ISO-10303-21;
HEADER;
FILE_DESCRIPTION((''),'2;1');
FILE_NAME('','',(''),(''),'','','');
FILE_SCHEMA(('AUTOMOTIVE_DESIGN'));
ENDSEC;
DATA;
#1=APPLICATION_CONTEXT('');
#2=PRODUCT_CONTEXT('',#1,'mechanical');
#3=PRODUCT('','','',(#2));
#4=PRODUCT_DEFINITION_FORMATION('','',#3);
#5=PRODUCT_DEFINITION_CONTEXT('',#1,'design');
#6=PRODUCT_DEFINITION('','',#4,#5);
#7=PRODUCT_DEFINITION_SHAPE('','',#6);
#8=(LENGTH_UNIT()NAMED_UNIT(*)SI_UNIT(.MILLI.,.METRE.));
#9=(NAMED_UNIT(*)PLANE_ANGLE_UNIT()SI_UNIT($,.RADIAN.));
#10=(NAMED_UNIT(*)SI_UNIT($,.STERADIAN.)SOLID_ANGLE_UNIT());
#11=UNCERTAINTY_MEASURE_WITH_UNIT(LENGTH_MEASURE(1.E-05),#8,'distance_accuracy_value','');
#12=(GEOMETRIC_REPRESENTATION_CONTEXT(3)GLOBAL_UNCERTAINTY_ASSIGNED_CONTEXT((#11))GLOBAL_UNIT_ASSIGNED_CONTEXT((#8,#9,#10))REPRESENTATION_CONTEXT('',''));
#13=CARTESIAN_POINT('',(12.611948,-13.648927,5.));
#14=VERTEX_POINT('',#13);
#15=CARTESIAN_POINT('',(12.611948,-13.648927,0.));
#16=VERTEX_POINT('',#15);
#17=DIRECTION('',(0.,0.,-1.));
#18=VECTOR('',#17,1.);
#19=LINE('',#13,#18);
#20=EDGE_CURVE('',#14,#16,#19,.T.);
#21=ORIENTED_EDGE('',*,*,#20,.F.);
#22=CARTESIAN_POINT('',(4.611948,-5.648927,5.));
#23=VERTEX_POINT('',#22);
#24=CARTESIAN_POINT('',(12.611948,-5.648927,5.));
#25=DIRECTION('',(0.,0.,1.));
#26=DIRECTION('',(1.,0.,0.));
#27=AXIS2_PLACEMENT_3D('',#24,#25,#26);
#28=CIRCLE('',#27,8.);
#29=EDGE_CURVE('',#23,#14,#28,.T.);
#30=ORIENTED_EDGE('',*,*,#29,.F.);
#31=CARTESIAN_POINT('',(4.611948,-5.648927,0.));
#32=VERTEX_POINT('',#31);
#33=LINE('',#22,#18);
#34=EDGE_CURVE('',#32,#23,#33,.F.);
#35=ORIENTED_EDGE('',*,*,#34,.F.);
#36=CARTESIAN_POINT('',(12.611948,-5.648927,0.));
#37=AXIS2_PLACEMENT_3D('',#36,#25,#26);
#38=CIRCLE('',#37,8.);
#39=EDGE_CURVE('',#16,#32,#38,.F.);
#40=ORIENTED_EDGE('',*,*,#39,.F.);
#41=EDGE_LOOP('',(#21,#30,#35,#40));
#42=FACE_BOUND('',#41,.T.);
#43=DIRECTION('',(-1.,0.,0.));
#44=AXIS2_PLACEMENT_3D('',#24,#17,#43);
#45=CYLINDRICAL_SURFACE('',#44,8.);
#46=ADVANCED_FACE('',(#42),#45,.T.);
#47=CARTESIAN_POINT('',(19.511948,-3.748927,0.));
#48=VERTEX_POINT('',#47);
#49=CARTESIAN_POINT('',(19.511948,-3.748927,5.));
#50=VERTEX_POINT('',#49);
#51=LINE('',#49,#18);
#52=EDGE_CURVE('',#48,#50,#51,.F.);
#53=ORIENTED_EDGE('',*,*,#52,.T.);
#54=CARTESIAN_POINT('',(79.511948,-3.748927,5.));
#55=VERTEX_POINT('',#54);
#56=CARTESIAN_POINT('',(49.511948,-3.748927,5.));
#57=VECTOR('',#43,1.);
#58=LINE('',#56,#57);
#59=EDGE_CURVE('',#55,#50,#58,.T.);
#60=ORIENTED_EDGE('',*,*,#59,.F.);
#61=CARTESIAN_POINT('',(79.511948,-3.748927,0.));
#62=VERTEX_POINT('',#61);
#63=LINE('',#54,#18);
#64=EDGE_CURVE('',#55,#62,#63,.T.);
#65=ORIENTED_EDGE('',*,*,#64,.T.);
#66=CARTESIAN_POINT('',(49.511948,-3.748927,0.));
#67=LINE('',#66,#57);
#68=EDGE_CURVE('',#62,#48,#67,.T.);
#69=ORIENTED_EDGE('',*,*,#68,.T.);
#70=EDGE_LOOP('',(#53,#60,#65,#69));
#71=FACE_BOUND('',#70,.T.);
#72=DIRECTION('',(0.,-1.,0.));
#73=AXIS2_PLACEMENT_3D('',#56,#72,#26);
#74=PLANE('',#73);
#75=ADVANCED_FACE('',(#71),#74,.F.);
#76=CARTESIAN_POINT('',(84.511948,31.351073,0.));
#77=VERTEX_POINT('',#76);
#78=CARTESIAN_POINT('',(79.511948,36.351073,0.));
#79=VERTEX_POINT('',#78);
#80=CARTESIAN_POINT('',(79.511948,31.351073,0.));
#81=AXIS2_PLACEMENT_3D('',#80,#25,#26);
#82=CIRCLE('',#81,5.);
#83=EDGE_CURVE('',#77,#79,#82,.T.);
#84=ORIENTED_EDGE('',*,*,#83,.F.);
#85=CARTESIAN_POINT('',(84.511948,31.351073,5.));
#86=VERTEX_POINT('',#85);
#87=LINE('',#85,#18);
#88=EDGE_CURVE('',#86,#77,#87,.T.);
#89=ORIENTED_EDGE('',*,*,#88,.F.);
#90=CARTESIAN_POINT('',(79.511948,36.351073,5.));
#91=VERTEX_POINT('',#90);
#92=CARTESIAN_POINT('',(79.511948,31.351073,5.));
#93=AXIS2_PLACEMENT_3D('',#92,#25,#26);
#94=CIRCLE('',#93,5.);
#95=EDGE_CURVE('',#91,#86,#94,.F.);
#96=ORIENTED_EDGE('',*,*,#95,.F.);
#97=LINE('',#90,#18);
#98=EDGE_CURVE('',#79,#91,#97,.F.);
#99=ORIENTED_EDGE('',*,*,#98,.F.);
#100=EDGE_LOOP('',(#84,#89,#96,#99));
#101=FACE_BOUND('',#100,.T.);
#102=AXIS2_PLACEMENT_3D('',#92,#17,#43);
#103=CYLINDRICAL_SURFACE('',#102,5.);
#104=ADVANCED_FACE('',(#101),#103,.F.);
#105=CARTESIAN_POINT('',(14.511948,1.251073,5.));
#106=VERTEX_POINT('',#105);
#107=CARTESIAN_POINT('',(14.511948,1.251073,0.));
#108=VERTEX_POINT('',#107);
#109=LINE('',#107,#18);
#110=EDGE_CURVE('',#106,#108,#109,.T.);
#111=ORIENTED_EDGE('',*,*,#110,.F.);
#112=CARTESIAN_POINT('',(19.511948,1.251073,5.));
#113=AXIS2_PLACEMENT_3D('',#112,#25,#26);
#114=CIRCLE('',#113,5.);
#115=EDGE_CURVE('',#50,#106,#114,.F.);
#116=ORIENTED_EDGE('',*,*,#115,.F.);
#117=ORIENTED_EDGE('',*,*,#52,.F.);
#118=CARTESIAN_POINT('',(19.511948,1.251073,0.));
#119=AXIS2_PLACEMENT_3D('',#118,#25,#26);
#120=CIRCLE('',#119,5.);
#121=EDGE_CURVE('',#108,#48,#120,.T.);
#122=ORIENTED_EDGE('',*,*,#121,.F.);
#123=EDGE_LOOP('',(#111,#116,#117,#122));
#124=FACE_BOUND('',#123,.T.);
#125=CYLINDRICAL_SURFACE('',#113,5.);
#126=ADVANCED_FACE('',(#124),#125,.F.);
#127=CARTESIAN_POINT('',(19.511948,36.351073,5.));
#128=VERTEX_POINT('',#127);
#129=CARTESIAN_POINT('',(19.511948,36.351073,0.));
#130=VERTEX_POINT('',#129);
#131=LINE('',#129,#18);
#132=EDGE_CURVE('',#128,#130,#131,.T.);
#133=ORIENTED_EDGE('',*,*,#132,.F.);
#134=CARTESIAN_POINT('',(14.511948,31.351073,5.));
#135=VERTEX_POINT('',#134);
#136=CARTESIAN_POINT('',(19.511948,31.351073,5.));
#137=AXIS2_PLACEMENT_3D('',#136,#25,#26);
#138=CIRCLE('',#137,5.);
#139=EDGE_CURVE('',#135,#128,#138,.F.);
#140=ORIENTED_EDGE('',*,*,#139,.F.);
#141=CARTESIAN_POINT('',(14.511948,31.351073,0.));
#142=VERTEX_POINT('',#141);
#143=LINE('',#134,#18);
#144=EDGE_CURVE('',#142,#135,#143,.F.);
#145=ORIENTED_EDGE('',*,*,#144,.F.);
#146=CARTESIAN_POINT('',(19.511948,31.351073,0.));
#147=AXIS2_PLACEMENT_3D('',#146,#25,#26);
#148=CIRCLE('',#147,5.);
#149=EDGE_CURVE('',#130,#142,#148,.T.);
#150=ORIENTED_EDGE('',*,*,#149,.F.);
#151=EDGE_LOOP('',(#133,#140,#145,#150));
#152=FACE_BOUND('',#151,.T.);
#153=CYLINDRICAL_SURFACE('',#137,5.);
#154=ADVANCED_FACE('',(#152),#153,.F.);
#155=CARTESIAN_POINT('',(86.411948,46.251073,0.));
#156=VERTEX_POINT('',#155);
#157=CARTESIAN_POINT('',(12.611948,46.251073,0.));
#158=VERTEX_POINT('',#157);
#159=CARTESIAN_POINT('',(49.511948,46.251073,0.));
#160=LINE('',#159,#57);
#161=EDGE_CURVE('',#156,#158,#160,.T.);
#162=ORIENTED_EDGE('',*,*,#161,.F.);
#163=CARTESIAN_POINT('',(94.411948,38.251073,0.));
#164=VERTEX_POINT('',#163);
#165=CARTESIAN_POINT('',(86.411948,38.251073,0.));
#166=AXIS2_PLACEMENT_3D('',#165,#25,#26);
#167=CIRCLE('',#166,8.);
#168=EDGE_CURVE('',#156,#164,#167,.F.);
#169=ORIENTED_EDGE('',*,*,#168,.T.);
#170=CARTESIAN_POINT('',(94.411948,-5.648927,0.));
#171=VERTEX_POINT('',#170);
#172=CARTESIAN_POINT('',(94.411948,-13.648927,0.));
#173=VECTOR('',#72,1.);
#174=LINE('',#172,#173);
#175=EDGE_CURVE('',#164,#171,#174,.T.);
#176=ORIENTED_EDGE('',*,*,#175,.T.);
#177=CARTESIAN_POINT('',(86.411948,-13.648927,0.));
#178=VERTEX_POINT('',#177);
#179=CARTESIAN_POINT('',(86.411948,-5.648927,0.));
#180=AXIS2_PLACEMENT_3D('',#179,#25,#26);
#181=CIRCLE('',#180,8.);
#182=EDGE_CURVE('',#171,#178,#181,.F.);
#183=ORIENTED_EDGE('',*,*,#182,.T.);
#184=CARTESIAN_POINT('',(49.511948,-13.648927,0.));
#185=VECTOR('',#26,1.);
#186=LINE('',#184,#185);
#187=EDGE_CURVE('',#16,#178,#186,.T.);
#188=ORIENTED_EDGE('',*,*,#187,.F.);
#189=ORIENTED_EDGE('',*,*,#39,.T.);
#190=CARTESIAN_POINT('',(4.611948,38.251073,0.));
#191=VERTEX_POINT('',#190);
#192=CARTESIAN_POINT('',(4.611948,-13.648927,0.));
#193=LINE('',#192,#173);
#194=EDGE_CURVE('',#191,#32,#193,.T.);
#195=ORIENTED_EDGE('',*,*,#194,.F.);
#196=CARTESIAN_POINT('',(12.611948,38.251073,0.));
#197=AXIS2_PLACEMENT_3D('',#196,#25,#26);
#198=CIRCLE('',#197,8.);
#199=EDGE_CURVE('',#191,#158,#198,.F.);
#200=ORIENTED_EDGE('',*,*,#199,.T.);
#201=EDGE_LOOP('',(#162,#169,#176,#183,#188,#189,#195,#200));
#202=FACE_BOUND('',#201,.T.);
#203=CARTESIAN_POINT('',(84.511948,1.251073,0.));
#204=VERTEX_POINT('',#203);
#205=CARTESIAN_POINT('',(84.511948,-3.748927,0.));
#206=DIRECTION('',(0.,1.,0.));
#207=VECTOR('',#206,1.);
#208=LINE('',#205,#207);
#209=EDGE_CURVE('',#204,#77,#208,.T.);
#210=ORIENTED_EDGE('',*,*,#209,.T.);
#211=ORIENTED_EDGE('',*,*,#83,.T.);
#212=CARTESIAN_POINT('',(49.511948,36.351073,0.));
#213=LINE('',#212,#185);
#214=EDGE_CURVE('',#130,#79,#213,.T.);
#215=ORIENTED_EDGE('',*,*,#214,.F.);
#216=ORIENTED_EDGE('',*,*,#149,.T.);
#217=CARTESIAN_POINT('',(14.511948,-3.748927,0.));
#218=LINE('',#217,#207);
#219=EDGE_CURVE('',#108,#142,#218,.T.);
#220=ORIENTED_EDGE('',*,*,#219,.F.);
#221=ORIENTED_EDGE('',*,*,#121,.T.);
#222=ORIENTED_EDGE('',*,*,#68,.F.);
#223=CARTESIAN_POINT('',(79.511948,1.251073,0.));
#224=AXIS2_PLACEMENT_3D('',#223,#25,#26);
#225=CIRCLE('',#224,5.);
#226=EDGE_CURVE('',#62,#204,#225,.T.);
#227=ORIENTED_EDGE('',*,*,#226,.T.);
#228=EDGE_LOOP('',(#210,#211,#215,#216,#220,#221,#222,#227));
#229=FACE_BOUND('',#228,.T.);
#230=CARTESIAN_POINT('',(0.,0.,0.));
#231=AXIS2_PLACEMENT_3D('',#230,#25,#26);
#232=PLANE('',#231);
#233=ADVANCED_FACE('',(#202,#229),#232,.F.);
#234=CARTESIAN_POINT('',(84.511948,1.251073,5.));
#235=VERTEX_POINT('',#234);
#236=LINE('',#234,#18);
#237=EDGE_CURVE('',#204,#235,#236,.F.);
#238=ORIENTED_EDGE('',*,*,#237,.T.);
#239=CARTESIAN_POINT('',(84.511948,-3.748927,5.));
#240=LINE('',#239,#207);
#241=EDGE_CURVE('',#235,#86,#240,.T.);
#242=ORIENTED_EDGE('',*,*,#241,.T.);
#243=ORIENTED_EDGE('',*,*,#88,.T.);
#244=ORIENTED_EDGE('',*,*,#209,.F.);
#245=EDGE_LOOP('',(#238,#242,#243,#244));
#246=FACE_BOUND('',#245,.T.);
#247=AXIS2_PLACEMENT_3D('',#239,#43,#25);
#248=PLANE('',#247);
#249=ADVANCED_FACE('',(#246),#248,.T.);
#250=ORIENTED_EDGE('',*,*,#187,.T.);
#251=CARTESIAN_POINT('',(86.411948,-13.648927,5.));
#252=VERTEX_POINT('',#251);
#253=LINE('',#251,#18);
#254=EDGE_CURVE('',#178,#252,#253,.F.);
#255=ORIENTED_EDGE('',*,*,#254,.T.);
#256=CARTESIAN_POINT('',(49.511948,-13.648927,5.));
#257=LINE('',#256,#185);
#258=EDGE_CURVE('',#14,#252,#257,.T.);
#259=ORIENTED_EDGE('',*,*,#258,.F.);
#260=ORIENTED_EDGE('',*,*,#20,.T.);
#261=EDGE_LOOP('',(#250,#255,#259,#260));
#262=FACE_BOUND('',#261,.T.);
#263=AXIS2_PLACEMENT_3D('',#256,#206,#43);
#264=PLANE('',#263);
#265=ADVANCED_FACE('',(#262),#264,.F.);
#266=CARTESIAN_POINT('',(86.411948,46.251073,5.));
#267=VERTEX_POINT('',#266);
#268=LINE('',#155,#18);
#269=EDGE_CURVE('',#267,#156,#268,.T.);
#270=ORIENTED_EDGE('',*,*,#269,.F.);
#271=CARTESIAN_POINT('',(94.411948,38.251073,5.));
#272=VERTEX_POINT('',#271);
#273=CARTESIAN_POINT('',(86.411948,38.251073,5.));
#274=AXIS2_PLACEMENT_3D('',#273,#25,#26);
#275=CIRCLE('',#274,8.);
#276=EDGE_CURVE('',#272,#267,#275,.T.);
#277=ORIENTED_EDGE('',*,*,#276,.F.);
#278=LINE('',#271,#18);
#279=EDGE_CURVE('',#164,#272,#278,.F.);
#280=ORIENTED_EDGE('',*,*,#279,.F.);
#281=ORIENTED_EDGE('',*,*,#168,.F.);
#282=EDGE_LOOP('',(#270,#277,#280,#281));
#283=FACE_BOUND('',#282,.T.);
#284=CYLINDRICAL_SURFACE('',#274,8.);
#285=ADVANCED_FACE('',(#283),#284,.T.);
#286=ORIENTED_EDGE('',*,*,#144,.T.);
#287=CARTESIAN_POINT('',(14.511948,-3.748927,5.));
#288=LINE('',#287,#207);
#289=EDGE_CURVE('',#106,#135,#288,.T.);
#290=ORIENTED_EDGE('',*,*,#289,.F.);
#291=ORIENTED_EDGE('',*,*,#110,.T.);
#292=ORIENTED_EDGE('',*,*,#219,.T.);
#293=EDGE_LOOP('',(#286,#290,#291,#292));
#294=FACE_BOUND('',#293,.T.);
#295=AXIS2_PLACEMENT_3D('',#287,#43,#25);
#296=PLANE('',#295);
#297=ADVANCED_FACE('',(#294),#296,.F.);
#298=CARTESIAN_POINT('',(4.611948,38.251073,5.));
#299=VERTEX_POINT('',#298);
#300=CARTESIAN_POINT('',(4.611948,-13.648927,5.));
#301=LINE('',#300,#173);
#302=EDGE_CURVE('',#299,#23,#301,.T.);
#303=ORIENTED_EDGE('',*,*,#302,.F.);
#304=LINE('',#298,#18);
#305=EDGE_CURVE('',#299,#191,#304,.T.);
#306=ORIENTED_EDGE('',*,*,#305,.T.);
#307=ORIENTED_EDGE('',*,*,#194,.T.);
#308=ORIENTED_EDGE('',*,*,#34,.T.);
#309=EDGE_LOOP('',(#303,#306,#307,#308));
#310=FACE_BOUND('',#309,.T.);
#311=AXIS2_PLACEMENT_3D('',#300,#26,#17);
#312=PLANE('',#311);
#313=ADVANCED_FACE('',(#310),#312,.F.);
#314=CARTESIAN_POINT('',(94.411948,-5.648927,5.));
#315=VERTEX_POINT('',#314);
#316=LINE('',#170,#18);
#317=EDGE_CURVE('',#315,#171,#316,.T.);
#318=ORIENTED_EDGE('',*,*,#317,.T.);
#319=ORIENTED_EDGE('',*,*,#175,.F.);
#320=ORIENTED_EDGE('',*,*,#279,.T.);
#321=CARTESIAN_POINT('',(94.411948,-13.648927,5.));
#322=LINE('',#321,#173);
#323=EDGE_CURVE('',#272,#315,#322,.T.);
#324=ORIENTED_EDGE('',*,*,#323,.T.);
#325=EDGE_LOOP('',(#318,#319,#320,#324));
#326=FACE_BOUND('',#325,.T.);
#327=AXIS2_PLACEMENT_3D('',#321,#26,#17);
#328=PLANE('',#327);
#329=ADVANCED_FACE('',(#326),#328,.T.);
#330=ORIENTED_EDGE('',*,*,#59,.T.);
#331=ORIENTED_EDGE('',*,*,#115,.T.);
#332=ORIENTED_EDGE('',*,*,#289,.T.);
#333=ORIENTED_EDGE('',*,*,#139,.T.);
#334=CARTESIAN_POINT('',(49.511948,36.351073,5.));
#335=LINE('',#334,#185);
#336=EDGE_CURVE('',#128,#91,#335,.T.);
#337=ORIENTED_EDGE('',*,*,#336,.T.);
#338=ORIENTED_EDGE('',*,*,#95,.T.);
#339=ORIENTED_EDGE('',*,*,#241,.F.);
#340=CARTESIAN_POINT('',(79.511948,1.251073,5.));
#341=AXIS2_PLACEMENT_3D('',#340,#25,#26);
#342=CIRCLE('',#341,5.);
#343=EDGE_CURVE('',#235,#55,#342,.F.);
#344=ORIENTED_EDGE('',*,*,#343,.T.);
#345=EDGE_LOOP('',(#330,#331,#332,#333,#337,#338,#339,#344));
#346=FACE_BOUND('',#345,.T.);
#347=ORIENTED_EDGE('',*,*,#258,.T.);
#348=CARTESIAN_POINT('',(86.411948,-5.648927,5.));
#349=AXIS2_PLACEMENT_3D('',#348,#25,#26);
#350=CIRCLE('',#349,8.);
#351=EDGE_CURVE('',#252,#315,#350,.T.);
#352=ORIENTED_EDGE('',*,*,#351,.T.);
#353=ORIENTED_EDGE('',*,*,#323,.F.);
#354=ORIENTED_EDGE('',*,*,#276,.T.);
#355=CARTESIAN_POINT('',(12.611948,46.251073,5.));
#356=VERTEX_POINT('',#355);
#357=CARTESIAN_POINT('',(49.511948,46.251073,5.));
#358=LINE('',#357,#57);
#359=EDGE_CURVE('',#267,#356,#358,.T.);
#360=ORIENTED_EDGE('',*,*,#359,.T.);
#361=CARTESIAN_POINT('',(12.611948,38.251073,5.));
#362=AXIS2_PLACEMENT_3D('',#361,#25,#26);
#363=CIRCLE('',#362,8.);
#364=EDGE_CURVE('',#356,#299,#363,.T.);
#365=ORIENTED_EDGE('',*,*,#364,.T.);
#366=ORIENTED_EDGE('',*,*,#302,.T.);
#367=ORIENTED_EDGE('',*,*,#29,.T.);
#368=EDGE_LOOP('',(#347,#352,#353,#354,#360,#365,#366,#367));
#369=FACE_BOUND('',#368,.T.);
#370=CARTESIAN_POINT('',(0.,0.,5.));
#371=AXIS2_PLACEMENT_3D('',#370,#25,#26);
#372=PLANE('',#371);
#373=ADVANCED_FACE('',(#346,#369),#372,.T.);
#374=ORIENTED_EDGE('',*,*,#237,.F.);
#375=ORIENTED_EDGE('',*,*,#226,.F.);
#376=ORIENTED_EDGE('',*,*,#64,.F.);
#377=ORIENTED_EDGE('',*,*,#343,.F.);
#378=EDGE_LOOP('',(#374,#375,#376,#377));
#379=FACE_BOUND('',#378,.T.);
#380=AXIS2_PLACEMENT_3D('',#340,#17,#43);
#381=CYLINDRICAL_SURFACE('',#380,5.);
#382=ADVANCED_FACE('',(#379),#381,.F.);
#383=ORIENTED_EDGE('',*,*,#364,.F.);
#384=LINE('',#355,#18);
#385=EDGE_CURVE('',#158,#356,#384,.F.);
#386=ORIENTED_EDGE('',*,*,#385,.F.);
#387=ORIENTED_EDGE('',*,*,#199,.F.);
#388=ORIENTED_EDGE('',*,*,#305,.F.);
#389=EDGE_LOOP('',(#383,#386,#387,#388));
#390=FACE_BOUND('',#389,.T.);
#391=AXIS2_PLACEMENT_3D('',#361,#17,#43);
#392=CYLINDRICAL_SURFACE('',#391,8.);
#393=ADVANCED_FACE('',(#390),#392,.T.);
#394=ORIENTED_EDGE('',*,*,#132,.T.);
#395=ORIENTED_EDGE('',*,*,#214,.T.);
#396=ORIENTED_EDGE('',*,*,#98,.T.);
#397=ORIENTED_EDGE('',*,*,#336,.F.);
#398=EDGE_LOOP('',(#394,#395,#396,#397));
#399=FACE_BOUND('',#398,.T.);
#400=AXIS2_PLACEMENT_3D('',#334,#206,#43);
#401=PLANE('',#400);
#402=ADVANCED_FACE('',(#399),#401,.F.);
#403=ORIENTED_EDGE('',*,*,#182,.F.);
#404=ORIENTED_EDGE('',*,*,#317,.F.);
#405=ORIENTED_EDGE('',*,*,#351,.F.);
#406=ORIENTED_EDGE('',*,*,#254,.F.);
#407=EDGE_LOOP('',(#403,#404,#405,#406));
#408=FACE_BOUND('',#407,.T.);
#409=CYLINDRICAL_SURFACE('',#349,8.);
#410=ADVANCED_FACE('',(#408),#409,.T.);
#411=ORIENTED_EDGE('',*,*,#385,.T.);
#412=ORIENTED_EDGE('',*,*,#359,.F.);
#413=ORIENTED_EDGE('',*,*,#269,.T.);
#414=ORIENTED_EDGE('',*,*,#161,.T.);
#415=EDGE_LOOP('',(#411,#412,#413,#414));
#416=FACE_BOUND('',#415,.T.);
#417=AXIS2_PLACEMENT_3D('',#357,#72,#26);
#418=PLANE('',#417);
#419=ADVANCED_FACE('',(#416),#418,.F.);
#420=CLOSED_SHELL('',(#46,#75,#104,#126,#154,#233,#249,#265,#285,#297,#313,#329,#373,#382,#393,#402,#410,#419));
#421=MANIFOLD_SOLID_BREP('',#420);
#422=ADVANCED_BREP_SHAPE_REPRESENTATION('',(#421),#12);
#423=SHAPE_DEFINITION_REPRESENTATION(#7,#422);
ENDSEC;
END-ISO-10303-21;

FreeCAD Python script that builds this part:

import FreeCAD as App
import Part
import Sketcher
Q = App.Units.Quantity


def edges_at(feature, points):
    """Names of the edges that pass closest to the given points."""
    edges = feature.Shape.Edges
    near = lambda p: min(range(len(edges)), key=lambda i: edges[i].distToShape(Part.Vertex(*p))[0])
    return sorted({f"Edge{near(p) + 1}" for p in points})

doc = App.newDocument("Part")
body = doc.addObject("PartDesign::Body", "Body")

# Sketch on XY plane
sketch1 = body.newObject("Sketcher::SketchObject", "Sketch")
sketch1.AttachmentSupport = (doc.getObject("XY_Plane"), [""])
sketch1.MapMode = "FlatFace"
sketch1.addGeometry(Part.LineSegment(App.Vector(4.611948, -13.648927, 0), App.Vector(49.511948, -13.648927, 0)), False)
sketch1.addGeometry(Part.LineSegment(App.Vector(49.511948, -13.648927, 0), App.Vector(49.511948, -3.748927, 0)), False)
sketch1.addGeometry(Part.LineSegment(App.Vector(49.511948, -3.748927, 0), App.Vector(14.511948, -3.748927, 0)), False)
sketch1.addGeometry(Part.LineSegment(App.Vector(14.511948, -3.748927, 0), App.Vector(14.511948, 36.351073, 0)), False)
sketch1.addGeometry(Part.LineSegment(App.Vector(14.511948, 36.351073, 0), App.Vector(49.511948, 36.351073, 0)), False)
sketch1.addGeometry(Part.LineSegment(App.Vector(49.511948, 36.351073, 0), App.Vector(49.511948, 46.251073, 0)), False)
sketch1.addGeometry(Part.LineSegment(App.Vector(49.511948, 46.251073, 0), App.Vector(4.611948, 46.251073, 0)), False)
sketch1.addGeometry(Part.LineSegment(App.Vector(4.611948, 46.251073, 0), App.Vector(4.611948, -13.648927, 0)), False)
sketch1.addConstraint(Sketcher.Constraint("Coincident", 0, 2, 1, 1))
sketch1.addConstraint(Sketcher.Constraint("Coincident", 1, 2, 2, 1))
sketch1.addConstraint(Sketcher.Constraint("Coincident", 2, 2, 3, 1))
sketch1.addConstraint(Sketcher.Constraint("Coincident", 3, 2, 4, 1))
sketch1.addConstraint(Sketcher.Constraint("Coincident", 4, 2, 5, 1))
sketch1.addConstraint(Sketcher.Constraint("Coincident", 5, 2, 6, 1))
sketch1.addConstraint(Sketcher.Constraint("Coincident", 6, 2, 7, 1))
sketch1.addConstraint(Sketcher.Constraint("Coincident", 7, 2, 0, 1))
sketch1.addConstraint(Sketcher.Constraint("Horizontal", 0))
sketch1.addConstraint(Sketcher.Constraint("Vertical", 1))
sketch1.addConstraint(Sketcher.Constraint("Horizontal", 2))
sketch1.addConstraint(Sketcher.Constraint("Vertical", 3))
sketch1.addConstraint(Sketcher.Constraint("Horizontal", 4))
sketch1.addConstraint(Sketcher.Constraint("Vertical", 5))
sketch1.addConstraint(Sketcher.Constraint("Horizontal", 6))
sketch1.addConstraint(Sketcher.Constraint("Vertical", 7))
sketch1.addConstraint(Sketcher.Constraint("Vertical", 1, 2, 4, 2))
sketch1.addConstraint(Sketcher.Constraint("Equal", 1, 5))
sketch1.addConstraint(Sketcher.Constraint("DistanceX", 2, 2, 2, 1, Q("35 mm")))
sketch1.addConstraint(Sketcher.Constraint("DistanceX", 0, 1, 0, 2, Q("44.9 mm")))
sketch1.addConstraint(Sketcher.Constraint("DistanceY", 1, 1, 1, 2, Q("9.9 mm")))
sketch1.addConstraint(Sketcher.Constraint("DistanceY", 3, 1, 3, 2, Q("40.1 mm")))
sketch1.addConstraint(Sketcher.Constraint("DistanceX", -1, 1, 0, 2, Q("49.511948 mm")))
sketch1.addConstraint(Sketcher.Constraint("DistanceY", 0, 2, -1, 1, Q("13.648927 mm")))
pad1 = body.newObject("PartDesign::Pad", "Pad")
pad1.Profile = sketch1
pad1.Length = 5
doc.recompute()

datumplane = body.newObject("PartDesign::Plane", "DatumPlane")
datumplane.AttachmentSupport = (doc.getObject("YZ_Plane"), [""])
datumplane.MapMode = "FlatFace"
datumplane.AttachmentOffset = App.Placement(App.Vector(0, 0, 49.511948), App.Rotation())
mirrored = body.newObject("PartDesign::Mirrored", "Mirrored")
mirrored.Originals = [pad1]
mirrored.MirrorPlane = (datumplane, [""])
body.Tip = mirrored
doc.recompute()

fillet = body.newObject("PartDesign::Fillet", "Fillet")
fillet.Base = (mirrored, edges_at(mirrored, [
    (4.612, -13.649, 2.5),
    (4.612, 46.251, 2.5),
    (94.412, -13.649, 2.5),
    (94.412, 46.251, 2.5),
]))
fillet.Radius = 8
doc.recompute()

fillet2 = body.newObject("PartDesign::Fillet", "Fillet001")
fillet2.Base = (fillet, edges_at(fillet, [
    (14.512, 36.351, 2.5),
    (14.512, -3.749, 2.5),
    (84.512, 36.351, 2.5),
    (84.512, -3.749, 2.5),
]))
fillet2.Radius = 5

doc.recompute()
